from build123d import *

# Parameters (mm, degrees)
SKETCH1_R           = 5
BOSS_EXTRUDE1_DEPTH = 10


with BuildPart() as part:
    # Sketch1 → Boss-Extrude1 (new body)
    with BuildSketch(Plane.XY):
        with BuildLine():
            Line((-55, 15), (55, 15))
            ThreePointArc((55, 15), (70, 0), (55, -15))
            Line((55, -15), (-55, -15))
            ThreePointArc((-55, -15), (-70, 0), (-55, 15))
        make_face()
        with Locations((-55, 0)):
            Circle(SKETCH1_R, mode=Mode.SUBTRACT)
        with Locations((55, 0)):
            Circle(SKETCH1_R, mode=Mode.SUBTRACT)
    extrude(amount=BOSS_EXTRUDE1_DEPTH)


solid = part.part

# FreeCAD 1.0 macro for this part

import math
import FreeCAD as App
import Part
import Sketcher

doc = App.newDocument("Part")
params = doc.addObject("Spreadsheet::Sheet", "Params")
for row, (alias, value) in enumerate([
    ("sketch1_diameter", "10 mm"),
    ("sketch1_radius", "15 mm"),
    ("sketch1_width", "110 mm"),
    ("pad1_length", "10 mm"),
], start=1):
    params.set(f"A{row}", alias)
    params.set(f"B{row}", "=" + value)
    params.setAlias(f"B{row}", alias)

body = doc.addObject("PartDesign::Body", "Body")

# Sketch on XY plane
sketch1 = doc.addObject("Sketcher::SketchObject", "Sketch")
body.addObject(sketch1)
sketch1.AttachmentSupport = (doc.XY_Plane, [""])
sketch1.MapMode = "FlatFace"
sketch1.addGeometry([
    Part.LineSegment(App.Vector(55, 15, 0), App.Vector(-55, 15, 0)),  # 0
    Part.ArcOfCircle(Part.Circle(App.Vector(-55, 0, 0), App.Vector(0, 0, 1), 15), math.radians(90), math.radians(270)),  # 1
    Part.LineSegment(App.Vector(-55, -15, 0), App.Vector(55, -15, 0)),  # 2
    Part.ArcOfCircle(Part.Circle(App.Vector(55, 0, 0), App.Vector(0, 0, 1), 15), math.radians(-90), math.radians(90)),  # 3
    Part.Circle(App.Vector(55, 0, 0), App.Vector(0, 0, 1), 5),  # 4
    Part.Circle(App.Vector(-55, 0, 0), App.Vector(0, 0, 1), 5),  # 5
], False)
sketch1.addConstraint([
    Sketcher.Constraint("Tangent", 0, 2, 1, 1),
    Sketcher.Constraint("Tangent", 1, 2, 2, 1),
    Sketcher.Constraint("Tangent", 2, 2, 3, 1),
    Sketcher.Constraint("Tangent", 3, 2, 0, 1),
    Sketcher.Constraint("Horizontal", 0),
    Sketcher.Constraint("Horizontal", 2),
    Sketcher.Constraint("Coincident", 4, 3, 3, 3),
    Sketcher.Constraint("Coincident", 5, 3, 1, 3),
    Sketcher.Constraint("Equal", 4, 5),
    Sketcher.Constraint("Symmetric", 1, 3, 3, 3, -1, 1),
    Sketcher.Constraint("Diameter", 4, 10.0),
    Sketcher.Constraint("Radius", 1, 15.0),
    Sketcher.Constraint("DistanceX", 0, 2, 0, 1, 110.0),
])
sketch1.setExpression("Constraints[10]", "Params.sketch1_diameter")
sketch1.setExpression("Constraints[11]", "Params.sketch1_radius")
sketch1.setExpression("Constraints[12]", "Params.sketch1_width")
pad1 = doc.addObject("PartDesign::Pad", "Pad")
body.addObject(pad1)
pad1.Profile = sketch1
pad1.setExpression("Length", "Params.pad1_length")

doc.recompute()
